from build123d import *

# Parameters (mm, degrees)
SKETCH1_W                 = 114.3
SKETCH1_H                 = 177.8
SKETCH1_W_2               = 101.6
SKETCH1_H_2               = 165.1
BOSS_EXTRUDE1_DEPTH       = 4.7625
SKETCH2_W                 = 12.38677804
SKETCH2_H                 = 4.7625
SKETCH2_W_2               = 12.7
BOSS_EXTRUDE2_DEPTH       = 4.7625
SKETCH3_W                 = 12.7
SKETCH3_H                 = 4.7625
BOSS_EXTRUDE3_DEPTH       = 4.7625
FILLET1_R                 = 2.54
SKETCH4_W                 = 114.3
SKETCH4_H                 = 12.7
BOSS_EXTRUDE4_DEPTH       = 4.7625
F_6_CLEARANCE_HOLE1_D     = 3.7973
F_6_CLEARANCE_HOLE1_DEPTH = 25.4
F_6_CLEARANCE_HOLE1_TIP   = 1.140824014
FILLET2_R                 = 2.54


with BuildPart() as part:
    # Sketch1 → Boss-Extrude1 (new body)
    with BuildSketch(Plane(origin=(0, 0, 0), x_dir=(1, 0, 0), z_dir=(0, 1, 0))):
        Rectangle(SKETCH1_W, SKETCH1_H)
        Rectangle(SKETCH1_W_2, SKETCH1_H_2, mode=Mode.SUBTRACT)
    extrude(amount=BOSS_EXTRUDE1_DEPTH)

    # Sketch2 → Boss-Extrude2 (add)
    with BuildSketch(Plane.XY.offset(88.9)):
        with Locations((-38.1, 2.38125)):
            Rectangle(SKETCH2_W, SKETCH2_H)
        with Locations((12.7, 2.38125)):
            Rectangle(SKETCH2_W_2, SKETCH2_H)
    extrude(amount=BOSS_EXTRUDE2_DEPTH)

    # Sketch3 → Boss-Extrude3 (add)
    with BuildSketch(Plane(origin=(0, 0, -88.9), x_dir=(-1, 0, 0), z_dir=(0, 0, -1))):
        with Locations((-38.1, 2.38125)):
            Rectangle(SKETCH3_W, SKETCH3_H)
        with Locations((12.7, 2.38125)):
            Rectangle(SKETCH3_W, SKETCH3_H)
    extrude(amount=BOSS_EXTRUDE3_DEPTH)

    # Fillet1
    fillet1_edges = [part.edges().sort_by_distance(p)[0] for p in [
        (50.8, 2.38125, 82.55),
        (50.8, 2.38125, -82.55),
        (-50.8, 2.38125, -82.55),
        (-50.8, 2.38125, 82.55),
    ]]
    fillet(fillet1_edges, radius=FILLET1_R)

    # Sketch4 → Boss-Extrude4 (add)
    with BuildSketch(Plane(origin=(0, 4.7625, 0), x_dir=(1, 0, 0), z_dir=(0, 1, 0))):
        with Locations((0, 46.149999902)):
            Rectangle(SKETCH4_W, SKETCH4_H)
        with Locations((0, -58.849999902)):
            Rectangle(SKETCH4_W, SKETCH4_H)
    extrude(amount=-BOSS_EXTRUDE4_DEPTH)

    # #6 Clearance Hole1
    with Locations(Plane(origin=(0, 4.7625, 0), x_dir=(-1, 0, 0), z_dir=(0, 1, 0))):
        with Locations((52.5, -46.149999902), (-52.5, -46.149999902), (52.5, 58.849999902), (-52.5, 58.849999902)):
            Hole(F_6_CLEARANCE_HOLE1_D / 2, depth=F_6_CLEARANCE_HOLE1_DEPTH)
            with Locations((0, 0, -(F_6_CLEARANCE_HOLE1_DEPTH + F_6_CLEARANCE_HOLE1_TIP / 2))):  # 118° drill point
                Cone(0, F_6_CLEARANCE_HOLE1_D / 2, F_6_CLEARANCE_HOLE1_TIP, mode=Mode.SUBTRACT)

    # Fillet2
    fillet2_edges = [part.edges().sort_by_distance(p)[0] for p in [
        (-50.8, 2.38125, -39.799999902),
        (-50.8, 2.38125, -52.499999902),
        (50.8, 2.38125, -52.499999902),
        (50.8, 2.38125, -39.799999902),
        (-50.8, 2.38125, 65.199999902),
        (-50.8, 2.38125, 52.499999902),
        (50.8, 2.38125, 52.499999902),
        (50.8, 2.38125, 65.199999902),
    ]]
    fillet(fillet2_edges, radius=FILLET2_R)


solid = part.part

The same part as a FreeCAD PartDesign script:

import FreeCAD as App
import Part
import Sketcher
Q = App.Units.Quantity


def edges_at(feature, points):
    """Names of the edges that pass closest to the given points."""
    edges = feature.Shape.Edges
    near = lambda p: min(range(len(edges)), key=lambda i: edges[i].distToShape(Part.Vertex(*p))[0])
    return sorted({f"Edge{near(p) + 1}" for p in points})

doc = App.newDocument("Part")
body = doc.addObject("PartDesign::Body", "Body")

# Sketch on XZ plane
sketch1 = body.newObject("Sketcher::SketchObject", "Sketch")
sketch1.AttachmentSupport = (doc.getObject("XZ_Plane"), [""])
sketch1.MapMode = "FlatFace"
sketch1.addGeometry([
    Part.LineSegment(App.Vector(-57.15, -88.9, 0), App.Vector(-57.15, 88.9, 0)),  # 0
    Part.LineSegment(App.Vector(-57.15, 88.9, 0), App.Vector(57.15, 88.9, 0)),  # 1
    Part.LineSegment(App.Vector(57.15, 88.9, 0), App.Vector(57.15, -88.9, 0)),  # 2
    Part.LineSegment(App.Vector(57.15, -88.9, 0), App.Vector(-57.15, -88.9, 0)),  # 3
    Part.LineSegment(App.Vector(50.8, 82.55, 0), App.Vector(-50.8, 82.55, 0)),  # 4
    Part.LineSegment(App.Vector(-50.8, 82.55, 0), App.Vector(-50.8, -82.55, 0)),  # 5
    Part.LineSegment(App.Vector(-50.8, -82.55, 0), App.Vector(50.8, -82.55, 0)),  # 6
    Part.LineSegment(App.Vector(50.8, -82.55, 0), App.Vector(50.8, 82.55, 0)),  # 7
], False)
sketch1.addConstraint([
    Sketcher.Constraint("Coincident", 0, 2, 1, 1),
    Sketcher.Constraint("Coincident", 1, 2, 2, 1),
    Sketcher.Constraint("Coincident", 2, 2, 3, 1),
    Sketcher.Constraint("Coincident", 3, 2, 0, 1),
    Sketcher.Constraint("Coincident", 4, 2, 5, 1),
    Sketcher.Constraint("Coincident", 5, 2, 6, 1),
    Sketcher.Constraint("Coincident", 6, 2, 7, 1),
    Sketcher.Constraint("Coincident", 7, 2, 4, 1),
    Sketcher.Constraint("Vertical", 0),
    Sketcher.Constraint("Horizontal", 1),
    Sketcher.Constraint("Vertical", 2),
    Sketcher.Constraint("Horizontal", 3),
    Sketcher.Constraint("Horizontal", 4),
    Sketcher.Constraint("Vertical", 5),
    Sketcher.Constraint("Horizontal", 6),
    Sketcher.Constraint("Vertical", 7),
    Sketcher.Constraint("Symmetric", 0, 2, 2, 2, -1, 1),
    Sketcher.Constraint("Symmetric", 4, 2, 6, 2, -1, 1),
    Sketcher.Constraint("DistanceX", 4, 2, 4, 1, Q("4 in")),
    Sketcher.Constraint("DistanceY", 0, 1, 0, 2, Q("7 in")),
    Sketcher.Constraint("DistanceX", 1, 1, 1, 2, Q("4.5 in")),
    Sketcher.Constraint("DistanceY", 5, 2, 5, 1, Q("6.5 in")),
])
pad1 = body.newObject("PartDesign::Pad", "Pad")
pad1.Profile = sketch1
pad1.Length = Q("0.1875 in")
pad1.Reversed = True

# Sketch on XY plane
sketch2 = body.newObject("Sketcher::SketchObject", "Sketch001")
sketch2.AttachmentSupport = (doc.getObject("XY_Plane"), [""])
sketch2.MapMode = "FlatFace"
sketch2.AttachmentOffset = App.Placement(App.Vector(0, 0, 3.5 * 25.4), App.Rotation())
sketch2.addGeometry([
    Part.LineSegment(App.Vector(-44.293389, 4.7625, 0), App.Vector(-44.293389, 0, 0)),  # 0
    Part.LineSegment(App.Vector(-44.293389, 0, 0), App.Vector(-31.906611, 0, 0)),  # 1
    Part.LineSegment(App.Vector(-31.906611, 0, 0), App.Vector(-31.906611, 4.7625, 0)),  # 2
    Part.LineSegment(App.Vector(-31.906611, 4.7625, 0), App.Vector(-44.293389, 4.7625, 0)),  # 3
    Part.LineSegment(App.Vector(6.35, 4.7625, 0), App.Vector(6.35, 0, 0)),  # 4
    Part.LineSegment(App.Vector(6.35, 0, 0), App.Vector(19.05, 0, 0)),  # 5
    Part.LineSegment(App.Vector(19.05, 0, 0), App.Vector(19.05, 4.7625, 0)),  # 6
    Part.LineSegment(App.Vector(19.05, 4.7625, 0), App.Vector(6.35, 4.7625, 0)),  # 7
], False)
sketch2.addConstraint([
    Sketcher.Constraint("Coincident", 0, 2, 1, 1),
    Sketcher.Constraint("Coincident", 1, 2, 2, 1),
    Sketcher.Constraint("Coincident", 2, 2, 3, 1),
    Sketcher.Constraint("Coincident", 3, 2, 0, 1),
    Sketcher.Constraint("Coincident", 4, 2, 5, 1),
    Sketcher.Constraint("Coincident", 5, 2, 6, 1),
    Sketcher.Constraint("Coincident", 6, 2, 7, 1),
    Sketcher.Constraint("Coincident", 7, 2, 4, 1),
    Sketcher.Constraint("Vertical", 0),
    Sketcher.Constraint("Horizontal", 1),
    Sketcher.Constraint("Vertical", 2),
    Sketcher.Constraint("Horizontal", 3),
    Sketcher.Constraint("Vertical", 4),
    Sketcher.Constraint("Horizontal", 5),
    Sketcher.Constraint("Vertical", 6),
    Sketcher.Constraint("Horizontal", 7),
    Sketcher.Constraint("PointOnObject", 0, 2, -1),
    Sketcher.Constraint("PointOnObject", 4, 2, -1),
    Sketcher.Constraint("Horizontal", 3, 2, 6, 2),
    Sketcher.Constraint("DistanceX", 5, 1, 5, 2, Q("0.5 in")),
    Sketcher.Constraint("DistanceY", 0, 2, 0, 1, Q("0.1875 in")),
    Sketcher.Constraint("DistanceX", -1, 1, 4, 2, Q("0.25 in")),
    Sketcher.Constraint("DistanceX", 1, 1, 1, 2, 12.386778),
    Sketcher.Constraint("DistanceX", 0, 2, -1, 1, 44.293389),
])
pad2 = body.newObject("PartDesign::Pad", "Pad001")
pad2.Profile = sketch2
pad2.Length = Q("0.1875 in")

# Sketch on XY plane
sketch3 = body.newObject("Sketcher::SketchObject", "Sketch002")
sketch3.AttachmentSupport = (doc.getObject("XY_Plane"), [""])
sketch3.MapMode = "FlatFace"
sketch3.AttachmentOffset = App.Placement(App.Vector(0, 0, -3.5 * 25.4), App.Rotation())
sketch3.addGeometry([
    Part.LineSegment(App.Vector(44.45, 4.7625, 0), App.Vector(44.45, 0, 0)),  # 0
    Part.LineSegment(App.Vector(44.45, 0, 0), App.Vector(31.75, 0, 0)),  # 1
    Part.LineSegment(App.Vector(31.75, 0, 0), App.Vector(31.75, 4.7625, 0)),  # 2
    Part.LineSegment(App.Vector(31.75, 4.7625, 0), App.Vector(44.45, 4.7625, 0)),  # 3
    Part.LineSegment(App.Vector(-6.35, 4.7625, 0), App.Vector(-6.35, 0, 0)),  # 4
    Part.LineSegment(App.Vector(-6.35, 0, 0), App.Vector(-19.05, 0, 0)),  # 5
    Part.LineSegment(App.Vector(-19.05, 0, 0), App.Vector(-19.05, 4.7625, 0)),  # 6
    Part.LineSegment(App.Vector(-19.05, 4.7625, 0), App.Vector(-6.35, 4.7625, 0)),  # 7
], False)
sketch3.addConstraint([
    Sketcher.Constraint("Coincident", 0, 2, 1, 1),
    Sketcher.Constraint("Coincident", 1, 2, 2, 1),
    Sketcher.Constraint("Coincident", 2, 2, 3, 1),
    Sketcher.Constraint("Coincident", 3, 2, 0, 1),
    Sketcher.Constraint("Coincident", 4, 2, 5, 1),
    Sketcher.Constraint("Coincident", 5, 2, 6, 1),
    Sketcher.Constraint("Coincident", 6, 2, 7, 1),
    Sketcher.Constraint("Coincident", 7, 2, 4, 1),
    Sketcher.Constraint("Vertical", 0),
    Sketcher.Constraint("Horizontal", 1),
    Sketcher.Constraint("Vertical", 2),
    Sketcher.Constraint("Horizontal", 3),
    Sketcher.Constraint("Vertical", 4),
    Sketcher.Constraint("Horizontal", 5),
    Sketcher.Constraint("Vertical", 6),
    Sketcher.Constraint("Horizontal", 7),
    Sketcher.Constraint("PointOnObject", 0, 2, -1),
    Sketcher.Constraint("PointOnObject", 4, 2, -1),
    Sketcher.Constraint("Horizontal", 3, 2, 6, 2),
    Sketcher.Constraint("Equal", 3, 5),
    Sketcher.Constraint("DistanceX", 1, 2, 1, 1, Q("0.5 in")),
    Sketcher.Constraint("DistanceX", 4, 2, 0, 2, Q("2 in")),
    Sketcher.Constraint("DistanceY", 0, 2, 0, 1, Q("0.1875 in")),
    Sketcher.Constraint("DistanceX", -1, 1, 0, 2, Q("1.75 in")),
])
pad3 = body.newObject("PartDesign::Pad", "Pad002")
pad3.Profile = sketch3
pad3.Length = Q("0.1875 in")
pad3.Reversed = True
doc.recompute()

fillet = body.newObject("PartDesign::Fillet", "Fillet")
fillet.Base = (pad3, edges_at(pad3, [
    (50.8, 2.381, 82.55),
    (50.8, 2.381, -82.55),
    (-50.8, 2.381, -82.55),
    (-50.8, 2.381, 82.55),
]))
fillet.Radius = Q("0.1 in")

# Sketch on XZ plane
sketch4 = body.newObject("Sketcher::SketchObject", "Sketch003")
sketch4.AttachmentSupport = (doc.getObject("XZ_Plane"), [""])
sketch4.MapMode = "FlatFace"
sketch4.AttachmentOffset = App.Placement(App.Vector(0, 0, -0.1875 * 25.4), App.Rotation())
sketch4.addGeometry([
    Part.LineSegment(App.Vector(-57.15, -52.5, 0), App.Vector(-57.15, -39.8, 0)),  # 0
    Part.LineSegment(App.Vector(-57.15, -39.8, 0), App.Vector(57.15, -39.8, 0)),  # 1
    Part.LineSegment(App.Vector(57.15, -39.8, 0), App.Vector(57.15, -52.5, 0)),  # 2
    Part.LineSegment(App.Vector(57.15, -52.5, 0), App.Vector(-57.15, -52.5, 0)),  # 3
    Part.LineSegment(App.Vector(-57.15, 52.5, 0), App.Vector(-57.15, 65.2, 0)),  # 4
    Part.LineSegment(App.Vector(-57.15, 65.2, 0), App.Vector(57.15, 65.2, 0)),  # 5
    Part.LineSegment(App.Vector(57.15, 65.2, 0), App.Vector(57.15, 52.5, 0)),  # 6
    Part.LineSegment(App.Vector(57.15, 52.5, 0), App.Vector(-57.15, 52.5, 0)),  # 7
], False)
sketch4.addConstraint([
    Sketcher.Constraint("Coincident", 0, 2, 1, 1),
    Sketcher.Constraint("Coincident", 1, 2, 2, 1),
    Sketcher.Constraint("Coincident", 2, 2, 3, 1),
    Sketcher.Constraint("Coincident", 3, 2, 0, 1),
    Sketcher.Constraint("Coincident", 4, 2, 5, 1),
    Sketcher.Constraint("Coincident", 5, 2, 6, 1),
    Sketcher.Constraint("Coincident", 6, 2, 7, 1),
    Sketcher.Constraint("Coincident", 7, 2, 4, 1),
    Sketcher.Constraint("Vertical", 0),
    Sketcher.Constraint("Horizontal", 1),
    Sketcher.Constraint("Vertical", 2),
    Sketcher.Constraint("Horizontal", 3),
    Sketcher.Constraint("Vertical", 4),
    Sketcher.Constraint("Horizontal", 5),
    Sketcher.Constraint("Vertical", 6),
    Sketcher.Constraint("Horizontal", 7),
    Sketcher.Constraint("Symmetric", 3, 2, 6, 2, -1, 1),
    Sketcher.Constraint("Vertical", 3, 2, 4, 2),
    Sketcher.Constraint("Vertical", 2, 2, 5, 2),
    Sketcher.Constraint("Equal", 2, 4),
    Sketcher.Constraint("DistanceX", 1, 1, 1, 2, Q("4.5 in")),
    Sketcher.Constraint("DistanceY", 0, 1, 0, 2, Q("0.5 in")),
    Sketcher.Constraint("DistanceY", 0, 2, -1, 1, 39.8),
])
pad4 = body.newObject("PartDesign::Pad", "Pad003")
pad4.Profile = sketch4
pad4.Length = Q("0.1875 in")

# Sketch on XZ plane
sketch5 = body.newObject("Sketcher::SketchObject", "Sketch004")
sketch5.AttachmentSupport = (doc.getObject("XZ_Plane"), [""])
sketch5.MapMode = "FlatFace"
sketch5.AttachmentOffset = App.Placement(App.Vector(0, 0, -0.1875 * 25.4), App.Rotation())
sketch5.addGeometry([
    Part.Circle(App.Vector(-52.5, -46.15, 0), App.Vector(0, 0, 1), 1.89865),
    Part.Circle(App.Vector(52.5, -46.15, 0), App.Vector(0, 0, 1), 1.89865),
    Part.Circle(App.Vector(-52.5, 58.85, 0), App.Vector(0, 0, 1), 1.89865),
    Part.Circle(App.Vector(52.5, 58.85, 0), App.Vector(0, 0, 1), 1.89865),
], False)
sketch5.addConstraint([
    Sketcher.Constraint("Equal", 0, 1),
    Sketcher.Constraint("Equal", 1, 2),
    Sketcher.Constraint("Equal", 2, 3),
    Sketcher.Constraint("Symmetric", 0, 3, 1, 3, -2),
    Sketcher.Constraint("Symmetric", 2, 3, 3, 3, -2),
    Sketcher.Constraint("Vertical", 0, 3, 2, 3),
    Sketcher.Constraint("Diameter", 0, Q("0.1495 in")),
    Sketcher.Constraint("DistanceX", 0, 3, -1, 1, 52.5),
    Sketcher.Constraint("DistanceY", 0, 3, -1, 1, 46.15),
    Sketcher.Constraint("DistanceY", -1, 1, 2, 3, 58.85),
])
doc.recompute()
hole = body.newObject("PartDesign::Hole", "Hole")
hole.Profile = sketch5
hole.ThreadType = "None"
hole.Diameter = Q("0.1495 in")
hole.DepthType = "Dimension"
hole.Depth = Q("1 in")
hole.DrillPoint = "Angled"
hole.DrillPointAngle = 118
hole.Reversed = True
doc.recompute()

fillet2 = body.newObject("PartDesign::Fillet", "Fillet001")
fillet2.Base = (hole, edges_at(hole, [
    (-50.8, 2.381, -39.8),
    (-50.8, 2.381, -52.5),
    (50.8, 2.381, -52.5),
    (50.8, 2.381, -39.8),
    (-50.8, 2.381, 65.2),
    (-50.8, 2.381, 52.5),
    (50.8, 2.381, 52.5),
    (50.8, 2.381, 65.2),
]))
fillet2.Radius = Q("0.1 in")

doc.recompute()
